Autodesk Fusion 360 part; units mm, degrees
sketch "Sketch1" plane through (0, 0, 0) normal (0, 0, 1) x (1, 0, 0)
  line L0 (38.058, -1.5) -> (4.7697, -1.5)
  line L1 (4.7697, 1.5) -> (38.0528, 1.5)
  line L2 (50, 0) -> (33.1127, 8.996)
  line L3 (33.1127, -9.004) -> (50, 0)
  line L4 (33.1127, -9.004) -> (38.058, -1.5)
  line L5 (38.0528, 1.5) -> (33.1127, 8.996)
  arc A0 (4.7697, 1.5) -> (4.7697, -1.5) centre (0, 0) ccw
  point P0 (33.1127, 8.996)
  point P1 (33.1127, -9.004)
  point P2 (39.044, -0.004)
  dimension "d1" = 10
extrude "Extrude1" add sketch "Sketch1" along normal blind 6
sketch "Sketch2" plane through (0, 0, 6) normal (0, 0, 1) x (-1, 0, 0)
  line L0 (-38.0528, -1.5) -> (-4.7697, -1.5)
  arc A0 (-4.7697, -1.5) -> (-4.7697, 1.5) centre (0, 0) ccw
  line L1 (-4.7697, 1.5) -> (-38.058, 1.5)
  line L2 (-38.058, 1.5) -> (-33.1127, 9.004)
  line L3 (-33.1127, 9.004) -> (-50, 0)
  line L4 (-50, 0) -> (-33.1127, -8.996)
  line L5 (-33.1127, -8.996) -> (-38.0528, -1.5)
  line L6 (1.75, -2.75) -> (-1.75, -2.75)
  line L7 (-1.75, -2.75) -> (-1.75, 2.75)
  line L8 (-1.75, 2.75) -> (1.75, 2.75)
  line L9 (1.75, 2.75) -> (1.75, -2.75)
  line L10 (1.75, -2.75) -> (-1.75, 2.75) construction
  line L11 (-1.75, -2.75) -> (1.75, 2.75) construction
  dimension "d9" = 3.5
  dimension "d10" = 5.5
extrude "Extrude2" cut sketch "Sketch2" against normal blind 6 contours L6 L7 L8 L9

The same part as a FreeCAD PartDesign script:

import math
import FreeCAD as App
import Part
import Sketcher
from FreeCAD import Vector


def add_polygon(sketch, points):
    """Adds a closed chain of lines whose ends are joined by coincident constraints."""
    first, n = sketch.GeometryCount, len(points)
    for a, b in zip(points, points[1:] + points[:1]):
        sketch.addGeometry(Part.LineSegment(App.Vector(*a, 0), App.Vector(*b, 0)), False)
    for i in range(n):
        sketch.addConstraint(Sketcher.Constraint("Coincident", first + i, 2, first + (i + 1) % n, 1))

doc = App.newDocument("Part")
body = doc.addObject("PartDesign::Body", "Body")

sketch1 = body.newObject("Sketcher::SketchObject", "Sketch")
sketch1.AttachmentSupport = (doc.getObject("XY_Plane"), [""])
sketch1.MapMode = "FlatFace"
sketch1.addGeometry(Part.LineSegment(Vector(4.8, -1.5, 0), Vector(38.1, -1.5, 0)), False)
sketch1.addGeometry(Part.LineSegment(Vector(38.1, -1.5, 0), Vector(33.1, -9, 0)), False)
sketch1.addGeometry(Part.LineSegment(Vector(33.1, -9, 0), Vector(50, 0, 0)), False)
sketch1.addGeometry(Part.LineSegment(Vector(50, 0, 0), Vector(33.1, 9, 0)), False)
sketch1.addGeometry(Part.LineSegment(Vector(33.1, 9, 0), Vector(38.1, 1.5, 0)), False)
sketch1.addGeometry(Part.LineSegment(Vector(38.1, 1.5, 0), Vector(4.8, 1.5, 0)), False)
sketch1.addGeometry(Part.ArcOfCircle(Part.Circle(Vector(0, 0, 0), Vector(0, 0, 1), 5), math.radians(17), math.radians(343)), False)
sketch1.addConstraint(Sketcher.Constraint("Coincident", 0, 2, 1, 1))
sketch1.addConstraint(Sketcher.Constraint("Coincident", 1, 2, 2, 1))
sketch1.addConstraint(Sketcher.Constraint("Coincident", 2, 2, 3, 1))
sketch1.addConstraint(Sketcher.Constraint("Coincident", 3, 2, 4, 1))
sketch1.addConstraint(Sketcher.Constraint("Coincident", 4, 2, 5, 1))
sketch1.addConstraint(Sketcher.Constraint("Coincident", 5, 2, 6, 1))
sketch1.addConstraint(Sketcher.Constraint("Coincident", 6, 2, 0, 1))
sketch1.addConstraint(Sketcher.Constraint("Horizontal", 0))
sketch1.addConstraint(Sketcher.Constraint("Horizontal", 5))
sketch1.addConstraint(Sketcher.Constraint("Coincident", 6, 3, -1, 1))
sketch1.addConstraint(Sketcher.Constraint("PointOnObject", 2, 2, -1))
sketch1.addConstraint(Sketcher.Constraint("Vertical", 1, 2, 3, 2))
sketch1.addConstraint(Sketcher.Constraint("Vertical", 5, 2, 6, 2))
sketch1.addConstraint(Sketcher.Constraint("Radius", 6, 5.0))
sketch1.addConstraint(Sketcher.Constraint("DistanceX", -1, 1, 2, 2, 50.0))
sketch1.addConstraint(Sketcher.Constraint("DistanceY", 1, 2, 3, 2, 18.0))
sketch1.addConstraint(Sketcher.Constraint("DistanceY", 0, 2, 4, 2, 3.0))
sketch1.addConstraint(Sketcher.Constraint("DistanceX", 5, 2, 5, 1, 33.283))
sketch1.addConstraint(Sketcher.Constraint("DistanceX", 3, 2, 4, 2, 4.94))
sketch1.addConstraint(Sketcher.Constraint("Distance", 1, 8.987))
sketch1.addConstraint(Sketcher.Constraint("Distance", 3, 19.134))
pad1 = body.newObject("PartDesign::Pad", "Pad")
pad1.Profile = sketch1
pad1.Length = 6

sketch2 = body.newObject("Sketcher::SketchObject", "Sketch001")
sketch2.AttachmentSupport = (doc.getObject("XY_Plane"), [""])
sketch2.MapMode = "FlatFace"
sketch2.AttachmentOffset = App.Placement(Vector(0, 0, 6), App.Rotation())
add_polygon(sketch2, [(1.8, 2.8), (-1.8, 2.8), (-1.8, -2.8), (1.8, -2.8)])
sketch2.addConstraint(Sketcher.Constraint("Horizontal", 0))
sketch2.addConstraint(Sketcher.Constraint("Vertical", 1))
sketch2.addConstraint(Sketcher.Constraint("Horizontal", 2))
sketch2.addConstraint(Sketcher.Constraint("Vertical", 3))
sketch2.addConstraint(Sketcher.Constraint("Symmetric", 0, 2, 2, 2, -1, 1))
sketch2.addConstraint(Sketcher.Constraint("DistanceX", 0, 2, 0, 1, 3.5))
sketch2.addConstraint(Sketcher.Constraint("DistanceY", 1, 2, 1, 1, 5.5))
pocket1 = body.newObject("PartDesign::Pocket", "Pocket")
pocket1.Profile = sketch2
pocket1.Length = 6

doc.recompute()
